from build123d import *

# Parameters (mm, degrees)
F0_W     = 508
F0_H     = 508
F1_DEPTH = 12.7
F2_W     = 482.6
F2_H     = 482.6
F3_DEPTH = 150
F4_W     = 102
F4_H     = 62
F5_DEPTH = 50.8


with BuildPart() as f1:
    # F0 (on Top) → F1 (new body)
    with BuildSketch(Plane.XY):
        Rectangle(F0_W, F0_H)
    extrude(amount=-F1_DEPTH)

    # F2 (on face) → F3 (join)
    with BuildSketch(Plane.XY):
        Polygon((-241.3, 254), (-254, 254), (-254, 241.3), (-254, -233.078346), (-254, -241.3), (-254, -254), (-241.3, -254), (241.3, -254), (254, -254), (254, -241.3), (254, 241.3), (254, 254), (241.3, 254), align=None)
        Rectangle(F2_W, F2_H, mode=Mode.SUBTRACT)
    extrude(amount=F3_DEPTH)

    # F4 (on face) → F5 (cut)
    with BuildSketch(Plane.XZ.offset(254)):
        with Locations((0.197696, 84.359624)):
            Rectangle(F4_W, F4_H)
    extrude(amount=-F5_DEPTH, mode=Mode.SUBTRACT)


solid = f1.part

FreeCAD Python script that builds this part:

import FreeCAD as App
import Part
import Sketcher
from FreeCAD import Vector
Q = App.Units.Quantity


def add_polygon(sketch, points):
    """Adds a closed chain of lines whose ends are joined by coincident constraints."""
    first, n = sketch.GeometryCount, len(points)
    for a, b in zip(points, points[1:] + points[:1]):
        sketch.addGeometry(Part.LineSegment(App.Vector(*a, 0), App.Vector(*b, 0)), False)
    for i in range(n):
        sketch.addConstraint(Sketcher.Constraint("Coincident", first + i, 2, first + (i + 1) % n, 1))

doc = App.newDocument("Part")
params = doc.addObject("Spreadsheet::Sheet", "Params")
for row, (alias, value) in enumerate([
    ("sketch1_width", "20 in"),
    ("pad1_length", "0.5 in"),
    ("sketch2_width", "20 in"),
    ("sketch2_width2", "19 in"),
    ("pad2_length", "150 mm"),
    ("pocket1_length", "2 in"),
], start=1):
    params.set(f"A{row}", alias)
    params.set(f"B{row}", "=" + value)
    params.setAlias(f"B{row}", alias)

body = doc.addObject("PartDesign::Body", "Body")

# Sketch on XY plane
sketch1 = body.newObject("Sketcher::SketchObject", "Sketch")
sketch1.AttachmentSupport = (doc.getObject("XY_Plane"), [""])
sketch1.MapMode = "FlatFace"
add_polygon(sketch1, [(-254, 254), (-254, -254), (254, -254), (254, 254)])  # lines 0-3
sketch1.addConstraint(Sketcher.Constraint("Vertical", 0))
sketch1.addConstraint(Sketcher.Constraint("Horizontal", 1))
sketch1.addConstraint(Sketcher.Constraint("Vertical", 2))
sketch1.addConstraint(Sketcher.Constraint("Horizontal", 3))
sketch1.addConstraint(Sketcher.Constraint("Symmetric", 0, 2, 2, 2, -1, 1))
sketch1.addConstraint(Sketcher.Constraint("Equal", 3, 0))
sketch1.addConstraint(Sketcher.Constraint("DistanceX", 1, 1, 1, 2, Q("20 in")))
sketch1.setExpression("Constraints[10]", "Params.sketch1_width")
pad1 = body.newObject("PartDesign::Pad", "Pad")
pad1.Profile = sketch1
pad1.setExpression("Length", "Params.pad1_length")
pad1.Reversed = True

# Sketch on XY plane
sketch2 = body.newObject("Sketcher::SketchObject", "Sketch001")
sketch2.AttachmentSupport = (doc.getObject("XY_Plane"), [""])
sketch2.MapMode = "FlatFace"
add_polygon(sketch2, [(-254, 254), (-254, -254), (254, -254), (254, 254)])  # lines 0-3
add_polygon(sketch2, [(241, -241), (-241, -241), (-241, 241), (241, 241)])  # lines 4-7
sketch2.addConstraint(Sketcher.Constraint("Vertical", 0))
sketch2.addConstraint(Sketcher.Constraint("Horizontal", 1))
sketch2.addConstraint(Sketcher.Constraint("Vertical", 2))
sketch2.addConstraint(Sketcher.Constraint("Horizontal", 3))
sketch2.addConstraint(Sketcher.Constraint("Horizontal", 4))
sketch2.addConstraint(Sketcher.Constraint("Vertical", 5))
sketch2.addConstraint(Sketcher.Constraint("Horizontal", 6))
sketch2.addConstraint(Sketcher.Constraint("Vertical", 7))
sketch2.addConstraint(Sketcher.Constraint("Symmetric", 0, 2, 2, 2, -1, 1))
sketch2.addConstraint(Sketcher.Constraint("Symmetric", 4, 2, 6, 2, -1, 1))
sketch2.addConstraint(Sketcher.Constraint("Equal", 3, 0))
sketch2.addConstraint(Sketcher.Constraint("Equal", 6, 5))
sketch2.addConstraint(Sketcher.Constraint("DistanceX", 1, 1, 1, 2, Q("20 in")))
sketch2.addConstraint(Sketcher.Constraint("DistanceX", 4, 2, 4, 1, Q("19 in")))
sketch2.setExpression("Constraints[20]", "Params.sketch2_width")
sketch2.setExpression("Constraints[21]", "Params.sketch2_width2")
pad2 = body.newObject("PartDesign::Pad", "Pad001")
pad2.Profile = sketch2
pad2.setExpression("Length", "Params.pad2_length")

# Sketch on XZ plane
sketch3 = body.newObject("Sketcher::SketchObject", "Sketch002")
sketch3.AttachmentSupport = (doc.getObject("XZ_Plane"), [""])
sketch3.MapMode = "FlatFace"
sketch3.AttachmentOffset = App.Placement(Vector(0, 0, 10 * 25.4), App.Rotation())
add_polygon(sketch3, [(-51, 115), (-51, 53), (51, 53), (51, 115)])  # lines 0-3
sketch3.addConstraint(Sketcher.Constraint("Vertical", 0))
sketch3.addConstraint(Sketcher.Constraint("Horizontal", 1))
sketch3.addConstraint(Sketcher.Constraint("Vertical", 2))
sketch3.addConstraint(Sketcher.Constraint("Horizontal", 3))
sketch3.addConstraint(Sketcher.Constraint("DistanceX", 1, 1, 1, 2, 102.0))
sketch3.addConstraint(Sketcher.Constraint("DistanceY", 0, 2, 0, 1, 62.0))
sketch3.addConstraint(Sketcher.Constraint("DistanceX", 0, 2, -1, 1, 50.802304))
sketch3.addConstraint(Sketcher.Constraint("DistanceY", -1, 1, 0, 2, 53.359624))
pocket1 = body.newObject("PartDesign::Pocket", "Pocket")
pocket1.Profile = sketch3
pocket1.setExpression("Length", "Params.pocket1_length")

doc.recompute()
